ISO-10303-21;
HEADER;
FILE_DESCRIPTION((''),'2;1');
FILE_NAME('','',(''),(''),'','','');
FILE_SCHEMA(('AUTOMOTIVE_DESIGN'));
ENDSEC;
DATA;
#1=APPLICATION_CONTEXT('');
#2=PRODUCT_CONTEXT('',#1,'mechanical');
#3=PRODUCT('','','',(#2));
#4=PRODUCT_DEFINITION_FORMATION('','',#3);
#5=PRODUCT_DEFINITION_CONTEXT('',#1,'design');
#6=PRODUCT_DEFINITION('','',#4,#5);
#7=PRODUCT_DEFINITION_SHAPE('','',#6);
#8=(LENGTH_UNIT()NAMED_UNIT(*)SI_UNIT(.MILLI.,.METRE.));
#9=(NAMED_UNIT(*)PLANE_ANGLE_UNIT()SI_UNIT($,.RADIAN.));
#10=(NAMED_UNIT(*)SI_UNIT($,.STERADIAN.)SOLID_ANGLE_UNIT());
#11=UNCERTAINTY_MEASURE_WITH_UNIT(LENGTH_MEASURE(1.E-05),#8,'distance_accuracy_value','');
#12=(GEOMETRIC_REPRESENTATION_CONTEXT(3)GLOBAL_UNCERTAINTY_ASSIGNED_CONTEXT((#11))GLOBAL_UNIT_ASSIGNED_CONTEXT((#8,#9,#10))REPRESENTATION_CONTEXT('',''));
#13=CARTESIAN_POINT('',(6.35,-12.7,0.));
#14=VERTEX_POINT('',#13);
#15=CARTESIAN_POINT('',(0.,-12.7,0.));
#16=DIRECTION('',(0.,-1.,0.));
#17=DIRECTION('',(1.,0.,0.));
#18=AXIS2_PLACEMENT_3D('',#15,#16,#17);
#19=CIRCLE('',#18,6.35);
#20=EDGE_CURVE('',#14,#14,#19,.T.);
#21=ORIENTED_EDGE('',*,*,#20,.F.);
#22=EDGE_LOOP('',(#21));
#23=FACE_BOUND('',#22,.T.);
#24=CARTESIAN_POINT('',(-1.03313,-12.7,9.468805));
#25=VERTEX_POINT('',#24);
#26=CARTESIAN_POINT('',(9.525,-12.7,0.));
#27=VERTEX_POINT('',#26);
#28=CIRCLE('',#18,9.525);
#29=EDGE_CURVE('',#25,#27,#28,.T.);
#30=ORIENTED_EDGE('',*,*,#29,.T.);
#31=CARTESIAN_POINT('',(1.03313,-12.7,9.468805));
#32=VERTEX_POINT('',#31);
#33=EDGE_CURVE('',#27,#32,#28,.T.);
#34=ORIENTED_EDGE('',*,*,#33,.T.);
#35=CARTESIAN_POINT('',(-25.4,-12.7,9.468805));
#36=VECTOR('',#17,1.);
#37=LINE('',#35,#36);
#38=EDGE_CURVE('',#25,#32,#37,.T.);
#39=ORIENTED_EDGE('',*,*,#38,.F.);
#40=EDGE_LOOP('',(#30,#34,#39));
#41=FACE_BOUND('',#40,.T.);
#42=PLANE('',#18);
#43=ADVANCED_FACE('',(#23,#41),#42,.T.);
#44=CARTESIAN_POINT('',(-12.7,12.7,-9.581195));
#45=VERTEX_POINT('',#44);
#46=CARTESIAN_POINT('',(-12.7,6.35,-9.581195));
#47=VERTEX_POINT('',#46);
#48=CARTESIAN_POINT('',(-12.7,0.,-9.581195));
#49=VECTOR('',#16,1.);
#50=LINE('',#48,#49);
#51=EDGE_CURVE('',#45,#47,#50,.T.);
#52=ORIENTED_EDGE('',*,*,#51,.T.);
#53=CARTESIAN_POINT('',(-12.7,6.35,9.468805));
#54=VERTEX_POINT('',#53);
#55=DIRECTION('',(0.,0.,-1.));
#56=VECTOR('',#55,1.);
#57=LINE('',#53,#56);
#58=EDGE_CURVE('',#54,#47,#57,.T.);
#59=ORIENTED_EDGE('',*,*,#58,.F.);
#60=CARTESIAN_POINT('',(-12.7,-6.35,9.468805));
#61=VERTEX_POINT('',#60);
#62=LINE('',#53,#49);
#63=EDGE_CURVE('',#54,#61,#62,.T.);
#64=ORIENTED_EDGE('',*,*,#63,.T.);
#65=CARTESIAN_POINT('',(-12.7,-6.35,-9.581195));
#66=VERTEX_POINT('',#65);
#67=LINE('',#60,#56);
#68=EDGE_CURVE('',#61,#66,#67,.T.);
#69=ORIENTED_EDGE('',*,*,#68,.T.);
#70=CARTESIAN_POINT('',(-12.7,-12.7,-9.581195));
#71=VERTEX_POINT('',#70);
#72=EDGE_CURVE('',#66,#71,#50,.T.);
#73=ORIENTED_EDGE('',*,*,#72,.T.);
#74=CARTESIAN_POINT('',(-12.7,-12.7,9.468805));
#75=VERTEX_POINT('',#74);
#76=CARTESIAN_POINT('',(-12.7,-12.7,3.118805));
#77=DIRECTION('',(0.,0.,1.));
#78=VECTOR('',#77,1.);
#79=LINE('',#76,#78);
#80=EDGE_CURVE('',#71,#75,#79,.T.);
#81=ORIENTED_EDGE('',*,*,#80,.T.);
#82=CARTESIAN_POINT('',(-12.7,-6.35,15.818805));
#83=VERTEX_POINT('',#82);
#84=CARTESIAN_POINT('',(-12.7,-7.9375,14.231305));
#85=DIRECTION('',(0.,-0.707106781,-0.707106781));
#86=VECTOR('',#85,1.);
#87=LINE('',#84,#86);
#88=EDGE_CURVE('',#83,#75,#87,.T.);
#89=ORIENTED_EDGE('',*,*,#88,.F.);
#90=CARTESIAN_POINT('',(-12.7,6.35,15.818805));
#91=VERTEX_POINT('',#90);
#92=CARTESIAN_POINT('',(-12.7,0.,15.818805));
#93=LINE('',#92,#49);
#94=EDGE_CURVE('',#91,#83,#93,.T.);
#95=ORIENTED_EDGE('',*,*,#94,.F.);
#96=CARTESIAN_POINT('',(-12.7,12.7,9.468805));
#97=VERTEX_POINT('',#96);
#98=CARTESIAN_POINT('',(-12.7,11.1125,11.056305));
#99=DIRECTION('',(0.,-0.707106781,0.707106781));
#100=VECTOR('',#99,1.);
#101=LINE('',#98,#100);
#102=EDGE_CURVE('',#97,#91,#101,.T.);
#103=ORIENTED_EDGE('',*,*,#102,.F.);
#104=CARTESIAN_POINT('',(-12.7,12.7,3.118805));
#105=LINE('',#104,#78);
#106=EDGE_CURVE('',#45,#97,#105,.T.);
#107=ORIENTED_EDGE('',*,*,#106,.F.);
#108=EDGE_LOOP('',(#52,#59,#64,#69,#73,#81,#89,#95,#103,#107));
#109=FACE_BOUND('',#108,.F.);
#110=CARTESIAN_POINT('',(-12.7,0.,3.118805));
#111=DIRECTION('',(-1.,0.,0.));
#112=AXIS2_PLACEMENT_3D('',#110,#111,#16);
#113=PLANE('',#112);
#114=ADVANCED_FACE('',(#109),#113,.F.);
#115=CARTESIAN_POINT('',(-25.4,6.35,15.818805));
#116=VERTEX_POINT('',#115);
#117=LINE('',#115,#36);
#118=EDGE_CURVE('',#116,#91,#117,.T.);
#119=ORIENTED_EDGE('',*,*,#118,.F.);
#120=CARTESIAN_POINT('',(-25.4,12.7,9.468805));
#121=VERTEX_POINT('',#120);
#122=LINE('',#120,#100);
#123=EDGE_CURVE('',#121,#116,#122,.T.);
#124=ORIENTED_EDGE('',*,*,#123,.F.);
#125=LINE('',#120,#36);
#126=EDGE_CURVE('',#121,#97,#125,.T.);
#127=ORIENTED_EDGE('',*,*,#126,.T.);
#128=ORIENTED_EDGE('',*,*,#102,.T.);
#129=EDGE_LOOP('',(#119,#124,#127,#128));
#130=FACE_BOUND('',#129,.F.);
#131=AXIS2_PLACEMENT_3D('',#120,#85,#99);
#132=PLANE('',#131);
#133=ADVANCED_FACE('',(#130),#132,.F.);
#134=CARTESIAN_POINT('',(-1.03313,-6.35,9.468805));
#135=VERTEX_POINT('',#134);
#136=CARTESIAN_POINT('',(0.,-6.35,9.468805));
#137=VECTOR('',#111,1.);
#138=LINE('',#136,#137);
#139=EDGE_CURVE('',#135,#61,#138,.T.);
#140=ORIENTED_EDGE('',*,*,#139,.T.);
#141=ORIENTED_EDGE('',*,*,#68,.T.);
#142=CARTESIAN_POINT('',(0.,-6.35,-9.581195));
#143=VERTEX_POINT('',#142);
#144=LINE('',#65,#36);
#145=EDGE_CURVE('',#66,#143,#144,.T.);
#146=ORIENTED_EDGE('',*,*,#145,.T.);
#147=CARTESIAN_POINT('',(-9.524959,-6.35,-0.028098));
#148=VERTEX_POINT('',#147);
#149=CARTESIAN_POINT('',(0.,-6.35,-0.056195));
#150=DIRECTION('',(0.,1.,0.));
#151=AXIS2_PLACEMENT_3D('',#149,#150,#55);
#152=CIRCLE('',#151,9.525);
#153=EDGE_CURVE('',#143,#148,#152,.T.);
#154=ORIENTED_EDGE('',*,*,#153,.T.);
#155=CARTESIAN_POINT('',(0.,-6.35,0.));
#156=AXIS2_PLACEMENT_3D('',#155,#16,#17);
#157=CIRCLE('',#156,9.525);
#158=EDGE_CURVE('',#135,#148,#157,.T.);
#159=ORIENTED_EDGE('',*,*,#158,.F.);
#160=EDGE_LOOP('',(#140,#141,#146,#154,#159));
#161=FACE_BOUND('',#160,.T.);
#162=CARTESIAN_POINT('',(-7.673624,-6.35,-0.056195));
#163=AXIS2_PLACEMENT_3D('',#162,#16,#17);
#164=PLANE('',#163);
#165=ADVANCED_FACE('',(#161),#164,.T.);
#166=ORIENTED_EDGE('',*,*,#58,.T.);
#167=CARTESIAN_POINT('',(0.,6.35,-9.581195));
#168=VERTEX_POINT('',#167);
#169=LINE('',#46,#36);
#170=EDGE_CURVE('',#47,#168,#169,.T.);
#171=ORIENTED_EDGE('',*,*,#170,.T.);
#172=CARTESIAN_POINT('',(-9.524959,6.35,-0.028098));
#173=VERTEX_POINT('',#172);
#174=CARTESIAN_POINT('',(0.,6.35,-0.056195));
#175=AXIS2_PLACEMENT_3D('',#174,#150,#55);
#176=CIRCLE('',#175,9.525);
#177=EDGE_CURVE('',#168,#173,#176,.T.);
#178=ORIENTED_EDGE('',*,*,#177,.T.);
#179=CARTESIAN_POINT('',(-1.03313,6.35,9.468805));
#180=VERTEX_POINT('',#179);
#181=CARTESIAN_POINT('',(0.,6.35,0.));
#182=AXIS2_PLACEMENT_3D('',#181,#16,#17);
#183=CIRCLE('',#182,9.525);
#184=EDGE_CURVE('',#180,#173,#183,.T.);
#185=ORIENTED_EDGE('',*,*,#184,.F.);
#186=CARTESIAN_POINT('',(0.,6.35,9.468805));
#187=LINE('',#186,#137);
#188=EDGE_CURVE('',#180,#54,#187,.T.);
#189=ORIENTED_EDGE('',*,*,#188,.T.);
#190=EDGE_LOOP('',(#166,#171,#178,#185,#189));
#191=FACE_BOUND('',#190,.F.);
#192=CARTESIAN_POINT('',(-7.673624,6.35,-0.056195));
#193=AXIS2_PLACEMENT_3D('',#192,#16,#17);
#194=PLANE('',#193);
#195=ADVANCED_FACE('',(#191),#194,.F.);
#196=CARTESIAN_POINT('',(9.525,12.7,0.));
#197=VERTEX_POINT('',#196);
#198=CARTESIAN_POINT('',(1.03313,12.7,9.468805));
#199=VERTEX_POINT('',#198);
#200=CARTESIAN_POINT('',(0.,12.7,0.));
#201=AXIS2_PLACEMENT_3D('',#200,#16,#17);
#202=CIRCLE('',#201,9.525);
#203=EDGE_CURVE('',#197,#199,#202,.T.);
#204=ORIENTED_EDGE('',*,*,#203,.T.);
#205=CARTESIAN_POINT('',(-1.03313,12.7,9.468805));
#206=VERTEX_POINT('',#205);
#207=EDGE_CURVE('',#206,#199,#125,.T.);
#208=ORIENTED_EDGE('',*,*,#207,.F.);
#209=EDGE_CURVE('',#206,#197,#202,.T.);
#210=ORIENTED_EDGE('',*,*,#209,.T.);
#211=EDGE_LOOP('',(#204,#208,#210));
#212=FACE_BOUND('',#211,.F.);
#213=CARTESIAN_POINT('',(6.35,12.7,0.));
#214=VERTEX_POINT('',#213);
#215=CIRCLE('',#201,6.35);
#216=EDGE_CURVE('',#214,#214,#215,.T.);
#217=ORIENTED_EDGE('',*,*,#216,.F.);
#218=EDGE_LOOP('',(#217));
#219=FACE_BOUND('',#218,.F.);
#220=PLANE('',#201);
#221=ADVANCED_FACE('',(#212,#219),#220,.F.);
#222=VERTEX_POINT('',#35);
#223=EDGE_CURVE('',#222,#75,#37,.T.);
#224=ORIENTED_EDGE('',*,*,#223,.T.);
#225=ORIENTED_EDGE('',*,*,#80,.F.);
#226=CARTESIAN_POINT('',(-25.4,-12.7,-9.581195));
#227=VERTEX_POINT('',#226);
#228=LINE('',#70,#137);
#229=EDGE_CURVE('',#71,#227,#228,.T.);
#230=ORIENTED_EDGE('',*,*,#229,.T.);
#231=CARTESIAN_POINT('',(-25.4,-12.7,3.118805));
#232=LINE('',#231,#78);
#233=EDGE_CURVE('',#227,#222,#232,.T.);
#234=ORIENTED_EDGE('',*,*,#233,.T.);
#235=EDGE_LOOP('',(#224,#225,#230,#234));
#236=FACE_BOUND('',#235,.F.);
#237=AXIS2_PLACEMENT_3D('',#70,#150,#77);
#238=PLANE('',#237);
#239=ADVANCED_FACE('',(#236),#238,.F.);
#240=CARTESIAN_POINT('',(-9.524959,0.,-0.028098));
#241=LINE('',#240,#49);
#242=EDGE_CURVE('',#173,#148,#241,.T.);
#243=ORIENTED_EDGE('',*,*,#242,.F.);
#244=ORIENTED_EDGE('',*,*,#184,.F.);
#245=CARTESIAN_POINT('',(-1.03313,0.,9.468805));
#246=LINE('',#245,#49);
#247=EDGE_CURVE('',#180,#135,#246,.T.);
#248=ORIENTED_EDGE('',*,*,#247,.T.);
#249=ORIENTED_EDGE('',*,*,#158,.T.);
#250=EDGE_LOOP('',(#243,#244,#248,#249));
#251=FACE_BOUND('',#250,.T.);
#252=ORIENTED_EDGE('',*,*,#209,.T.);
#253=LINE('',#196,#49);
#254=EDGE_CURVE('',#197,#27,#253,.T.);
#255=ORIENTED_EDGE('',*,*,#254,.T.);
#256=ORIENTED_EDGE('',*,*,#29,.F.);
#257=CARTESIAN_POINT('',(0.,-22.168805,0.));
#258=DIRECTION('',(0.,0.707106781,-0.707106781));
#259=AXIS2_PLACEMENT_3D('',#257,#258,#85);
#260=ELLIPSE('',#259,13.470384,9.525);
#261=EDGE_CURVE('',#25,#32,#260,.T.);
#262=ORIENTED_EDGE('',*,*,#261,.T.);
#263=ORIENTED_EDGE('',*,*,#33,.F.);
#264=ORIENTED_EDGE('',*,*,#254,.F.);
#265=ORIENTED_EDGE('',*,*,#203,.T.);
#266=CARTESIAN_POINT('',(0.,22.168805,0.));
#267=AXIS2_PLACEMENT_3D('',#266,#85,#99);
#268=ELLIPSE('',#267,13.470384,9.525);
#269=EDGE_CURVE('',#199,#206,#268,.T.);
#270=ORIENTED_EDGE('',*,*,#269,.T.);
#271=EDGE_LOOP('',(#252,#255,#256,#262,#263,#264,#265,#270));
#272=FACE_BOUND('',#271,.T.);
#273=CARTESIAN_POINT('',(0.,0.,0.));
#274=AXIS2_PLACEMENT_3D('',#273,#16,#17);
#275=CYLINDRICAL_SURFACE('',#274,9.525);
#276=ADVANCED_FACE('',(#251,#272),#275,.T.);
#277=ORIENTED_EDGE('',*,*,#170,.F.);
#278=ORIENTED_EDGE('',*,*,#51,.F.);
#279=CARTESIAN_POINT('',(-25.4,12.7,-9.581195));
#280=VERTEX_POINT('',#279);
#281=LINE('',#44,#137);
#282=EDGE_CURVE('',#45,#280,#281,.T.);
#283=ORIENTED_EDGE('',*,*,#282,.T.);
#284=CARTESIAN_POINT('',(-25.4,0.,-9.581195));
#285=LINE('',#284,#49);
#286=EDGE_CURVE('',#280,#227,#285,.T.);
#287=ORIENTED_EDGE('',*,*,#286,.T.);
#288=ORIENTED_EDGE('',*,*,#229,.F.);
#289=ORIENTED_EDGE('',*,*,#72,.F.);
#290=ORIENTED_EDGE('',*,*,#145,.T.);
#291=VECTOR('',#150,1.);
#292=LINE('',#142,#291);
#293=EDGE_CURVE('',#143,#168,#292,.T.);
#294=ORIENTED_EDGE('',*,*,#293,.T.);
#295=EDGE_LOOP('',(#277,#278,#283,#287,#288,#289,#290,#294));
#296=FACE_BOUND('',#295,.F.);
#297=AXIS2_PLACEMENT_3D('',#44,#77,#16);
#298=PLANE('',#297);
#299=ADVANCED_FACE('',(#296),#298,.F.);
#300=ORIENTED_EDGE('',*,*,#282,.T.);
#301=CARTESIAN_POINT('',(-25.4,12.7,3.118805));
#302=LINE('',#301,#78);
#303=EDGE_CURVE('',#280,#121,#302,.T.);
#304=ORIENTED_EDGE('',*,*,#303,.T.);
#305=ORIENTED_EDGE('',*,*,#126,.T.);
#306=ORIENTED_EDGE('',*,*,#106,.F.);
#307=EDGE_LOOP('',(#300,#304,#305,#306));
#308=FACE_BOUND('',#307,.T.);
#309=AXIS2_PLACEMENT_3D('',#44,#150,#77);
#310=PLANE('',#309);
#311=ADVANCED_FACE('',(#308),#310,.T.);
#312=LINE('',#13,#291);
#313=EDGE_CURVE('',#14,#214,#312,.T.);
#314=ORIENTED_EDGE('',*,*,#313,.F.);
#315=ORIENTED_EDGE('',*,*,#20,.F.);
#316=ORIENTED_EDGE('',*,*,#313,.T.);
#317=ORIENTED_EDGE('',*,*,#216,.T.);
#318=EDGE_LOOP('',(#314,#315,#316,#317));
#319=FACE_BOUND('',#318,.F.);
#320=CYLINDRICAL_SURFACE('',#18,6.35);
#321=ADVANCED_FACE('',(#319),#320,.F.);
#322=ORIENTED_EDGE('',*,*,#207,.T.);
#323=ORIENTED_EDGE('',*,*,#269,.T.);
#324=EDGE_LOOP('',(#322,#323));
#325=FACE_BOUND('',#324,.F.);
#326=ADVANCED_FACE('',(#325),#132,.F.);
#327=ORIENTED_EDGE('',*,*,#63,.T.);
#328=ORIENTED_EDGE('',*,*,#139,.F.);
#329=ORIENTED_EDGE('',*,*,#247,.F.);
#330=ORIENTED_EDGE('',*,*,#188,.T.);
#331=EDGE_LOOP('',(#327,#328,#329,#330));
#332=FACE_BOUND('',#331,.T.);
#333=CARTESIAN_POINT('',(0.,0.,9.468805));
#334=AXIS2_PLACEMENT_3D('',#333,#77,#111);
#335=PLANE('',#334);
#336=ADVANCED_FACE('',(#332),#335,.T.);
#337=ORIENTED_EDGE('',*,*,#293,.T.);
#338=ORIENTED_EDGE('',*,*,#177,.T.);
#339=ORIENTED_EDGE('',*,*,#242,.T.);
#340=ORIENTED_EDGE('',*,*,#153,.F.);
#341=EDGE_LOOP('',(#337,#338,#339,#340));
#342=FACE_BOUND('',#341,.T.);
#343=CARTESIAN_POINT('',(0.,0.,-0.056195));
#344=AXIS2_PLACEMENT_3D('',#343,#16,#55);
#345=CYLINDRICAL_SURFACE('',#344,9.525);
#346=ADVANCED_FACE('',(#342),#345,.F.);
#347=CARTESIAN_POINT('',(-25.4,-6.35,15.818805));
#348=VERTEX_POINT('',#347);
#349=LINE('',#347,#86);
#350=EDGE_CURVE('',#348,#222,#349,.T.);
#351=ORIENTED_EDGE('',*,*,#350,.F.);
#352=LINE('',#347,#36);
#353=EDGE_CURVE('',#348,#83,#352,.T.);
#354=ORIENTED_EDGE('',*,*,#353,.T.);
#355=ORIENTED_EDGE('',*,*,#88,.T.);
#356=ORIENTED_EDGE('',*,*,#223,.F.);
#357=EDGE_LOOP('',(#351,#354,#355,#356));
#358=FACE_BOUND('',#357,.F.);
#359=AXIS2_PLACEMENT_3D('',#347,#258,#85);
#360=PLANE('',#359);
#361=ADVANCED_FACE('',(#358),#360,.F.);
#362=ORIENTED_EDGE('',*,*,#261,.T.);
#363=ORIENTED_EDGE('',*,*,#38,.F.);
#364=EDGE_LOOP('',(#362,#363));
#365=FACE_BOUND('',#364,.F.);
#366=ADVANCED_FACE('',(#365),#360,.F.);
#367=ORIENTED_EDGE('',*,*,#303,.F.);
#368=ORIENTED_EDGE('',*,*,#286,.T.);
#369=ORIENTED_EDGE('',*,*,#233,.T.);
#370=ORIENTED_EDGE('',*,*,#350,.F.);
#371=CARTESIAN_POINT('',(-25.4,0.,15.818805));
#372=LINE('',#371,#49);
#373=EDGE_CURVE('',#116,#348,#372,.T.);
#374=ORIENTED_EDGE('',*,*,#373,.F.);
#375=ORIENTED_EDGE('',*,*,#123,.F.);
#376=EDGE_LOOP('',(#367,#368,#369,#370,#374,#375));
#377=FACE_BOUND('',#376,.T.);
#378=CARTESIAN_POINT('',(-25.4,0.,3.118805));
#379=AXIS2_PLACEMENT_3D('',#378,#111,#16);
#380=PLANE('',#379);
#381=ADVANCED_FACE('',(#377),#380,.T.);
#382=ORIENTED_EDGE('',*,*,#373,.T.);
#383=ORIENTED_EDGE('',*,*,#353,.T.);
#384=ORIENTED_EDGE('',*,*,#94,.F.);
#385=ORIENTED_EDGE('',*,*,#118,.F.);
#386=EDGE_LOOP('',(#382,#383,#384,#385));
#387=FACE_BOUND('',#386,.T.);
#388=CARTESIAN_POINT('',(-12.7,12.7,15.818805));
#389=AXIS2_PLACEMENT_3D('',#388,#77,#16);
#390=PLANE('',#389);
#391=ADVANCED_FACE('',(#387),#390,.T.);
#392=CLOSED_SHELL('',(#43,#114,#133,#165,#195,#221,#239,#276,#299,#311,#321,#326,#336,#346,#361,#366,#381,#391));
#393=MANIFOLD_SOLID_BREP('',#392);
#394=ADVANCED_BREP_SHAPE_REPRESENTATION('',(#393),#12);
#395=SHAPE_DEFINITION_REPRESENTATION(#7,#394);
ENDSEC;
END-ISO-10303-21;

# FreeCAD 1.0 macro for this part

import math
import FreeCAD as App
import Part
import Sketcher
from FreeCAD import Vector
Q = App.Units.Quantity


def add_polygon(sketch, points):
    """Adds a closed chain of lines whose ends are joined by coincident constraints."""
    first, n = sketch.GeometryCount, len(points)
    for a, b in zip(points, points[1:] + points[:1]):
        sketch.addGeometry(Part.LineSegment(App.Vector(*a, 0), App.Vector(*b, 0)), False)
    for i in range(n):
        sketch.addConstraint(Sketcher.Constraint("Coincident", first + i, 2, first + (i + 1) % n, 1))

doc = App.newDocument("Part")
body = doc.addObject("PartDesign::Body", "Body")

sketch1 = body.newObject("Sketcher::SketchObject", "Sketch")
sketch1.AttachmentSupport = (doc.getObject("XZ_Plane"), [""])
sketch1.MapMode = "FlatFace"
sketch1.addGeometry(Part.Circle(Vector(0, 0, 0), Vector(0, 0, 1), 10), False)
sketch1.addConstraint(Sketcher.Constraint("Coincident", 0, 3, -1, 1))
sketch1.addConstraint(Sketcher.Constraint("Diameter", 0, Q("0.75 in")))
pad1 = body.newObject("PartDesign::Pad", "Pad")
pad1.Profile = sketch1
pad1.Length = Q("1 in")
pad1.Midplane = True

sketch2 = body.newObject("Sketcher::SketchObject", "Sketch001")
sketch2.AttachmentSupport = (doc.getObject("XZ_Plane"), [""])
sketch2.MapMode = "FlatFace"
sketch2.addGeometry(Part.ArcOfCircle(Part.Circle(Vector(0, 0, 0), Vector(0, 0, 1), 10), math.radians(90), math.radians(270)), False)
sketch2.addGeometry(Part.LineSegment(Vector(0, 9, 0), Vector(-13, 9, 0)), False)
sketch2.addGeometry(Part.LineSegment(Vector(-13, 9, 0), Vector(-13, -10, 0)), False)
sketch2.addGeometry(Part.LineSegment(Vector(-13, -10, 0), Vector(0, -10, 0)), False)
sketch2.addConstraint(Sketcher.Constraint("Tangent", 0, 1, 1, 1))
sketch2.addConstraint(Sketcher.Constraint("Coincident", 1, 2, 2, 1))
sketch2.addConstraint(Sketcher.Constraint("Coincident", 2, 2, 3, 1))
sketch2.addConstraint(Sketcher.Constraint("Tangent", 3, 2, 0, 2))
sketch2.addConstraint(Sketcher.Constraint("Horizontal", 1))
sketch2.addConstraint(Sketcher.Constraint("Vertical", 2))
sketch2.addConstraint(Sketcher.Constraint("Horizontal", 3))
sketch2.addConstraint(Sketcher.Constraint("PointOnObject", 0, 3, -2))
sketch2.addConstraint(Sketcher.Constraint("DistanceX", 1, 2, 1, 1, Q("0.5 in")))
sketch2.addConstraint(Sketcher.Constraint("Radius", 0, Q("0.375 in")))
sketch2.addConstraint(Sketcher.Constraint("DistanceY", 0, 3, -1, 1, Q("0.056195 mm")))
pad2 = body.newObject("PartDesign::Pad", "Pad001")
pad2.Profile = sketch2
pad2.Length = Q("0.5 in")
pad2.Midplane = True

sketch3 = body.newObject("Sketcher::SketchObject", "Sketch002")
sketch3.AttachmentSupport = (doc.getObject("YZ_Plane"), [""])
sketch3.MapMode = "FlatFace"
sketch3.AttachmentOffset = App.Placement(Vector(0, 0, -0.5 * 25.4), App.Rotation())
add_polygon(sketch3, [(13, 16), (13, -10), (-13, -10), (-13, 16)])
sketch3.addConstraint(Sketcher.Constraint("Vertical", 0))
sketch3.addConstraint(Sketcher.Constraint("Horizontal", 1))
sketch3.addConstraint(Sketcher.Constraint("Vertical", 2))
sketch3.addConstraint(Sketcher.Constraint("Horizontal", 3))
sketch3.addConstraint(Sketcher.Constraint("Equal", 3, 0))
sketch3.addConstraint(Sketcher.Constraint("DistanceX", 1, 2, 1, 1, Q("1 in")))
sketch3.addConstraint(Sketcher.Constraint("DistanceX", -1, 1, 0, 2, Q("0.5 in")))
sketch3.addConstraint(Sketcher.Constraint("DistanceY", 0, 2, -1, 1, Q("9.581195 mm")))
pad3 = body.newObject("PartDesign::Pad", "Pad002")
pad3.Profile = sketch3
pad3.Length = Q("0.5 in")
pad3.Reversed = True

sketch4 = body.newObject("Sketcher::SketchObject", "Sketch003")
sketch4.AttachmentSupport = (doc.getObject("YZ_Plane"), [""])
sketch4.MapMode = "FlatFace"
sketch4.AttachmentOffset = App.Placement(Vector(0, 0, -1 * 25.4), App.Rotation())
add_polygon(sketch4, [(6, 16), (13, 16), (13, 9)])
add_polygon(sketch4, [(-13, 9), (-13, 16), (-6, 16)])
sketch4.addConstraint(Sketcher.Constraint("Horizontal", 0))
sketch4.addConstraint(Sketcher.Constraint("Vertical", 1))
sketch4.addConstraint(Sketcher.Constraint("Vertical", 3))
sketch4.addConstraint(Sketcher.Constraint("Horizontal", 4))
sketch4.addConstraint(Sketcher.Constraint("Symmetric", 0, 2, 3, 2, -2))
sketch4.addConstraint(Sketcher.Constraint("Perpendicular", 2, 5))
sketch4.addConstraint(Sketcher.Constraint("Horizontal", 1, 2, 5, 2))
sketch4.addConstraint(Sketcher.Constraint("Equal", 0, 4))
sketch4.addConstraint(Sketcher.Constraint("DistanceX", 3, 2, 0, 2, Q("1 in")))
sketch4.addConstraint(Sketcher.Constraint("DistanceX", 0, 1, 0, 2, Q("0.25 in")))
sketch4.addConstraint(Sketcher.Constraint("DistanceY", -1, 1, 0, 2, Q("15.818805 mm")))
pocket1 = body.newObject("PartDesign::Pocket", "Pocket")
pocket1.Profile = sketch4
pocket1.Type = "ThroughAll"
pocket1.Reversed = True

sketch5 = body.newObject("Sketcher::SketchObject", "Sketch004")
sketch5.AttachmentSupport = (doc.getObject("XZ_Plane"), [""])
sketch5.MapMode = "FlatFace"
sketch5.AttachmentOffset = App.Placement(Vector(0, 0, 0.5 * 25.4), App.Rotation())
sketch5.addGeometry(Part.Circle(Vector(0, 0, 0), Vector(0, 0, 1), 6), False)
sketch5.addConstraint(Sketcher.Constraint("Coincident", 0, 3, -1, 1))
sketch5.addConstraint(Sketcher.Constraint("Diameter", 0, Q("0.5 in")))
pocket2 = body.newObject("PartDesign::Pocket", "Pocket001")
pocket2.Profile = sketch5
pocket2.Type = "ThroughAll"

doc.recompute()
